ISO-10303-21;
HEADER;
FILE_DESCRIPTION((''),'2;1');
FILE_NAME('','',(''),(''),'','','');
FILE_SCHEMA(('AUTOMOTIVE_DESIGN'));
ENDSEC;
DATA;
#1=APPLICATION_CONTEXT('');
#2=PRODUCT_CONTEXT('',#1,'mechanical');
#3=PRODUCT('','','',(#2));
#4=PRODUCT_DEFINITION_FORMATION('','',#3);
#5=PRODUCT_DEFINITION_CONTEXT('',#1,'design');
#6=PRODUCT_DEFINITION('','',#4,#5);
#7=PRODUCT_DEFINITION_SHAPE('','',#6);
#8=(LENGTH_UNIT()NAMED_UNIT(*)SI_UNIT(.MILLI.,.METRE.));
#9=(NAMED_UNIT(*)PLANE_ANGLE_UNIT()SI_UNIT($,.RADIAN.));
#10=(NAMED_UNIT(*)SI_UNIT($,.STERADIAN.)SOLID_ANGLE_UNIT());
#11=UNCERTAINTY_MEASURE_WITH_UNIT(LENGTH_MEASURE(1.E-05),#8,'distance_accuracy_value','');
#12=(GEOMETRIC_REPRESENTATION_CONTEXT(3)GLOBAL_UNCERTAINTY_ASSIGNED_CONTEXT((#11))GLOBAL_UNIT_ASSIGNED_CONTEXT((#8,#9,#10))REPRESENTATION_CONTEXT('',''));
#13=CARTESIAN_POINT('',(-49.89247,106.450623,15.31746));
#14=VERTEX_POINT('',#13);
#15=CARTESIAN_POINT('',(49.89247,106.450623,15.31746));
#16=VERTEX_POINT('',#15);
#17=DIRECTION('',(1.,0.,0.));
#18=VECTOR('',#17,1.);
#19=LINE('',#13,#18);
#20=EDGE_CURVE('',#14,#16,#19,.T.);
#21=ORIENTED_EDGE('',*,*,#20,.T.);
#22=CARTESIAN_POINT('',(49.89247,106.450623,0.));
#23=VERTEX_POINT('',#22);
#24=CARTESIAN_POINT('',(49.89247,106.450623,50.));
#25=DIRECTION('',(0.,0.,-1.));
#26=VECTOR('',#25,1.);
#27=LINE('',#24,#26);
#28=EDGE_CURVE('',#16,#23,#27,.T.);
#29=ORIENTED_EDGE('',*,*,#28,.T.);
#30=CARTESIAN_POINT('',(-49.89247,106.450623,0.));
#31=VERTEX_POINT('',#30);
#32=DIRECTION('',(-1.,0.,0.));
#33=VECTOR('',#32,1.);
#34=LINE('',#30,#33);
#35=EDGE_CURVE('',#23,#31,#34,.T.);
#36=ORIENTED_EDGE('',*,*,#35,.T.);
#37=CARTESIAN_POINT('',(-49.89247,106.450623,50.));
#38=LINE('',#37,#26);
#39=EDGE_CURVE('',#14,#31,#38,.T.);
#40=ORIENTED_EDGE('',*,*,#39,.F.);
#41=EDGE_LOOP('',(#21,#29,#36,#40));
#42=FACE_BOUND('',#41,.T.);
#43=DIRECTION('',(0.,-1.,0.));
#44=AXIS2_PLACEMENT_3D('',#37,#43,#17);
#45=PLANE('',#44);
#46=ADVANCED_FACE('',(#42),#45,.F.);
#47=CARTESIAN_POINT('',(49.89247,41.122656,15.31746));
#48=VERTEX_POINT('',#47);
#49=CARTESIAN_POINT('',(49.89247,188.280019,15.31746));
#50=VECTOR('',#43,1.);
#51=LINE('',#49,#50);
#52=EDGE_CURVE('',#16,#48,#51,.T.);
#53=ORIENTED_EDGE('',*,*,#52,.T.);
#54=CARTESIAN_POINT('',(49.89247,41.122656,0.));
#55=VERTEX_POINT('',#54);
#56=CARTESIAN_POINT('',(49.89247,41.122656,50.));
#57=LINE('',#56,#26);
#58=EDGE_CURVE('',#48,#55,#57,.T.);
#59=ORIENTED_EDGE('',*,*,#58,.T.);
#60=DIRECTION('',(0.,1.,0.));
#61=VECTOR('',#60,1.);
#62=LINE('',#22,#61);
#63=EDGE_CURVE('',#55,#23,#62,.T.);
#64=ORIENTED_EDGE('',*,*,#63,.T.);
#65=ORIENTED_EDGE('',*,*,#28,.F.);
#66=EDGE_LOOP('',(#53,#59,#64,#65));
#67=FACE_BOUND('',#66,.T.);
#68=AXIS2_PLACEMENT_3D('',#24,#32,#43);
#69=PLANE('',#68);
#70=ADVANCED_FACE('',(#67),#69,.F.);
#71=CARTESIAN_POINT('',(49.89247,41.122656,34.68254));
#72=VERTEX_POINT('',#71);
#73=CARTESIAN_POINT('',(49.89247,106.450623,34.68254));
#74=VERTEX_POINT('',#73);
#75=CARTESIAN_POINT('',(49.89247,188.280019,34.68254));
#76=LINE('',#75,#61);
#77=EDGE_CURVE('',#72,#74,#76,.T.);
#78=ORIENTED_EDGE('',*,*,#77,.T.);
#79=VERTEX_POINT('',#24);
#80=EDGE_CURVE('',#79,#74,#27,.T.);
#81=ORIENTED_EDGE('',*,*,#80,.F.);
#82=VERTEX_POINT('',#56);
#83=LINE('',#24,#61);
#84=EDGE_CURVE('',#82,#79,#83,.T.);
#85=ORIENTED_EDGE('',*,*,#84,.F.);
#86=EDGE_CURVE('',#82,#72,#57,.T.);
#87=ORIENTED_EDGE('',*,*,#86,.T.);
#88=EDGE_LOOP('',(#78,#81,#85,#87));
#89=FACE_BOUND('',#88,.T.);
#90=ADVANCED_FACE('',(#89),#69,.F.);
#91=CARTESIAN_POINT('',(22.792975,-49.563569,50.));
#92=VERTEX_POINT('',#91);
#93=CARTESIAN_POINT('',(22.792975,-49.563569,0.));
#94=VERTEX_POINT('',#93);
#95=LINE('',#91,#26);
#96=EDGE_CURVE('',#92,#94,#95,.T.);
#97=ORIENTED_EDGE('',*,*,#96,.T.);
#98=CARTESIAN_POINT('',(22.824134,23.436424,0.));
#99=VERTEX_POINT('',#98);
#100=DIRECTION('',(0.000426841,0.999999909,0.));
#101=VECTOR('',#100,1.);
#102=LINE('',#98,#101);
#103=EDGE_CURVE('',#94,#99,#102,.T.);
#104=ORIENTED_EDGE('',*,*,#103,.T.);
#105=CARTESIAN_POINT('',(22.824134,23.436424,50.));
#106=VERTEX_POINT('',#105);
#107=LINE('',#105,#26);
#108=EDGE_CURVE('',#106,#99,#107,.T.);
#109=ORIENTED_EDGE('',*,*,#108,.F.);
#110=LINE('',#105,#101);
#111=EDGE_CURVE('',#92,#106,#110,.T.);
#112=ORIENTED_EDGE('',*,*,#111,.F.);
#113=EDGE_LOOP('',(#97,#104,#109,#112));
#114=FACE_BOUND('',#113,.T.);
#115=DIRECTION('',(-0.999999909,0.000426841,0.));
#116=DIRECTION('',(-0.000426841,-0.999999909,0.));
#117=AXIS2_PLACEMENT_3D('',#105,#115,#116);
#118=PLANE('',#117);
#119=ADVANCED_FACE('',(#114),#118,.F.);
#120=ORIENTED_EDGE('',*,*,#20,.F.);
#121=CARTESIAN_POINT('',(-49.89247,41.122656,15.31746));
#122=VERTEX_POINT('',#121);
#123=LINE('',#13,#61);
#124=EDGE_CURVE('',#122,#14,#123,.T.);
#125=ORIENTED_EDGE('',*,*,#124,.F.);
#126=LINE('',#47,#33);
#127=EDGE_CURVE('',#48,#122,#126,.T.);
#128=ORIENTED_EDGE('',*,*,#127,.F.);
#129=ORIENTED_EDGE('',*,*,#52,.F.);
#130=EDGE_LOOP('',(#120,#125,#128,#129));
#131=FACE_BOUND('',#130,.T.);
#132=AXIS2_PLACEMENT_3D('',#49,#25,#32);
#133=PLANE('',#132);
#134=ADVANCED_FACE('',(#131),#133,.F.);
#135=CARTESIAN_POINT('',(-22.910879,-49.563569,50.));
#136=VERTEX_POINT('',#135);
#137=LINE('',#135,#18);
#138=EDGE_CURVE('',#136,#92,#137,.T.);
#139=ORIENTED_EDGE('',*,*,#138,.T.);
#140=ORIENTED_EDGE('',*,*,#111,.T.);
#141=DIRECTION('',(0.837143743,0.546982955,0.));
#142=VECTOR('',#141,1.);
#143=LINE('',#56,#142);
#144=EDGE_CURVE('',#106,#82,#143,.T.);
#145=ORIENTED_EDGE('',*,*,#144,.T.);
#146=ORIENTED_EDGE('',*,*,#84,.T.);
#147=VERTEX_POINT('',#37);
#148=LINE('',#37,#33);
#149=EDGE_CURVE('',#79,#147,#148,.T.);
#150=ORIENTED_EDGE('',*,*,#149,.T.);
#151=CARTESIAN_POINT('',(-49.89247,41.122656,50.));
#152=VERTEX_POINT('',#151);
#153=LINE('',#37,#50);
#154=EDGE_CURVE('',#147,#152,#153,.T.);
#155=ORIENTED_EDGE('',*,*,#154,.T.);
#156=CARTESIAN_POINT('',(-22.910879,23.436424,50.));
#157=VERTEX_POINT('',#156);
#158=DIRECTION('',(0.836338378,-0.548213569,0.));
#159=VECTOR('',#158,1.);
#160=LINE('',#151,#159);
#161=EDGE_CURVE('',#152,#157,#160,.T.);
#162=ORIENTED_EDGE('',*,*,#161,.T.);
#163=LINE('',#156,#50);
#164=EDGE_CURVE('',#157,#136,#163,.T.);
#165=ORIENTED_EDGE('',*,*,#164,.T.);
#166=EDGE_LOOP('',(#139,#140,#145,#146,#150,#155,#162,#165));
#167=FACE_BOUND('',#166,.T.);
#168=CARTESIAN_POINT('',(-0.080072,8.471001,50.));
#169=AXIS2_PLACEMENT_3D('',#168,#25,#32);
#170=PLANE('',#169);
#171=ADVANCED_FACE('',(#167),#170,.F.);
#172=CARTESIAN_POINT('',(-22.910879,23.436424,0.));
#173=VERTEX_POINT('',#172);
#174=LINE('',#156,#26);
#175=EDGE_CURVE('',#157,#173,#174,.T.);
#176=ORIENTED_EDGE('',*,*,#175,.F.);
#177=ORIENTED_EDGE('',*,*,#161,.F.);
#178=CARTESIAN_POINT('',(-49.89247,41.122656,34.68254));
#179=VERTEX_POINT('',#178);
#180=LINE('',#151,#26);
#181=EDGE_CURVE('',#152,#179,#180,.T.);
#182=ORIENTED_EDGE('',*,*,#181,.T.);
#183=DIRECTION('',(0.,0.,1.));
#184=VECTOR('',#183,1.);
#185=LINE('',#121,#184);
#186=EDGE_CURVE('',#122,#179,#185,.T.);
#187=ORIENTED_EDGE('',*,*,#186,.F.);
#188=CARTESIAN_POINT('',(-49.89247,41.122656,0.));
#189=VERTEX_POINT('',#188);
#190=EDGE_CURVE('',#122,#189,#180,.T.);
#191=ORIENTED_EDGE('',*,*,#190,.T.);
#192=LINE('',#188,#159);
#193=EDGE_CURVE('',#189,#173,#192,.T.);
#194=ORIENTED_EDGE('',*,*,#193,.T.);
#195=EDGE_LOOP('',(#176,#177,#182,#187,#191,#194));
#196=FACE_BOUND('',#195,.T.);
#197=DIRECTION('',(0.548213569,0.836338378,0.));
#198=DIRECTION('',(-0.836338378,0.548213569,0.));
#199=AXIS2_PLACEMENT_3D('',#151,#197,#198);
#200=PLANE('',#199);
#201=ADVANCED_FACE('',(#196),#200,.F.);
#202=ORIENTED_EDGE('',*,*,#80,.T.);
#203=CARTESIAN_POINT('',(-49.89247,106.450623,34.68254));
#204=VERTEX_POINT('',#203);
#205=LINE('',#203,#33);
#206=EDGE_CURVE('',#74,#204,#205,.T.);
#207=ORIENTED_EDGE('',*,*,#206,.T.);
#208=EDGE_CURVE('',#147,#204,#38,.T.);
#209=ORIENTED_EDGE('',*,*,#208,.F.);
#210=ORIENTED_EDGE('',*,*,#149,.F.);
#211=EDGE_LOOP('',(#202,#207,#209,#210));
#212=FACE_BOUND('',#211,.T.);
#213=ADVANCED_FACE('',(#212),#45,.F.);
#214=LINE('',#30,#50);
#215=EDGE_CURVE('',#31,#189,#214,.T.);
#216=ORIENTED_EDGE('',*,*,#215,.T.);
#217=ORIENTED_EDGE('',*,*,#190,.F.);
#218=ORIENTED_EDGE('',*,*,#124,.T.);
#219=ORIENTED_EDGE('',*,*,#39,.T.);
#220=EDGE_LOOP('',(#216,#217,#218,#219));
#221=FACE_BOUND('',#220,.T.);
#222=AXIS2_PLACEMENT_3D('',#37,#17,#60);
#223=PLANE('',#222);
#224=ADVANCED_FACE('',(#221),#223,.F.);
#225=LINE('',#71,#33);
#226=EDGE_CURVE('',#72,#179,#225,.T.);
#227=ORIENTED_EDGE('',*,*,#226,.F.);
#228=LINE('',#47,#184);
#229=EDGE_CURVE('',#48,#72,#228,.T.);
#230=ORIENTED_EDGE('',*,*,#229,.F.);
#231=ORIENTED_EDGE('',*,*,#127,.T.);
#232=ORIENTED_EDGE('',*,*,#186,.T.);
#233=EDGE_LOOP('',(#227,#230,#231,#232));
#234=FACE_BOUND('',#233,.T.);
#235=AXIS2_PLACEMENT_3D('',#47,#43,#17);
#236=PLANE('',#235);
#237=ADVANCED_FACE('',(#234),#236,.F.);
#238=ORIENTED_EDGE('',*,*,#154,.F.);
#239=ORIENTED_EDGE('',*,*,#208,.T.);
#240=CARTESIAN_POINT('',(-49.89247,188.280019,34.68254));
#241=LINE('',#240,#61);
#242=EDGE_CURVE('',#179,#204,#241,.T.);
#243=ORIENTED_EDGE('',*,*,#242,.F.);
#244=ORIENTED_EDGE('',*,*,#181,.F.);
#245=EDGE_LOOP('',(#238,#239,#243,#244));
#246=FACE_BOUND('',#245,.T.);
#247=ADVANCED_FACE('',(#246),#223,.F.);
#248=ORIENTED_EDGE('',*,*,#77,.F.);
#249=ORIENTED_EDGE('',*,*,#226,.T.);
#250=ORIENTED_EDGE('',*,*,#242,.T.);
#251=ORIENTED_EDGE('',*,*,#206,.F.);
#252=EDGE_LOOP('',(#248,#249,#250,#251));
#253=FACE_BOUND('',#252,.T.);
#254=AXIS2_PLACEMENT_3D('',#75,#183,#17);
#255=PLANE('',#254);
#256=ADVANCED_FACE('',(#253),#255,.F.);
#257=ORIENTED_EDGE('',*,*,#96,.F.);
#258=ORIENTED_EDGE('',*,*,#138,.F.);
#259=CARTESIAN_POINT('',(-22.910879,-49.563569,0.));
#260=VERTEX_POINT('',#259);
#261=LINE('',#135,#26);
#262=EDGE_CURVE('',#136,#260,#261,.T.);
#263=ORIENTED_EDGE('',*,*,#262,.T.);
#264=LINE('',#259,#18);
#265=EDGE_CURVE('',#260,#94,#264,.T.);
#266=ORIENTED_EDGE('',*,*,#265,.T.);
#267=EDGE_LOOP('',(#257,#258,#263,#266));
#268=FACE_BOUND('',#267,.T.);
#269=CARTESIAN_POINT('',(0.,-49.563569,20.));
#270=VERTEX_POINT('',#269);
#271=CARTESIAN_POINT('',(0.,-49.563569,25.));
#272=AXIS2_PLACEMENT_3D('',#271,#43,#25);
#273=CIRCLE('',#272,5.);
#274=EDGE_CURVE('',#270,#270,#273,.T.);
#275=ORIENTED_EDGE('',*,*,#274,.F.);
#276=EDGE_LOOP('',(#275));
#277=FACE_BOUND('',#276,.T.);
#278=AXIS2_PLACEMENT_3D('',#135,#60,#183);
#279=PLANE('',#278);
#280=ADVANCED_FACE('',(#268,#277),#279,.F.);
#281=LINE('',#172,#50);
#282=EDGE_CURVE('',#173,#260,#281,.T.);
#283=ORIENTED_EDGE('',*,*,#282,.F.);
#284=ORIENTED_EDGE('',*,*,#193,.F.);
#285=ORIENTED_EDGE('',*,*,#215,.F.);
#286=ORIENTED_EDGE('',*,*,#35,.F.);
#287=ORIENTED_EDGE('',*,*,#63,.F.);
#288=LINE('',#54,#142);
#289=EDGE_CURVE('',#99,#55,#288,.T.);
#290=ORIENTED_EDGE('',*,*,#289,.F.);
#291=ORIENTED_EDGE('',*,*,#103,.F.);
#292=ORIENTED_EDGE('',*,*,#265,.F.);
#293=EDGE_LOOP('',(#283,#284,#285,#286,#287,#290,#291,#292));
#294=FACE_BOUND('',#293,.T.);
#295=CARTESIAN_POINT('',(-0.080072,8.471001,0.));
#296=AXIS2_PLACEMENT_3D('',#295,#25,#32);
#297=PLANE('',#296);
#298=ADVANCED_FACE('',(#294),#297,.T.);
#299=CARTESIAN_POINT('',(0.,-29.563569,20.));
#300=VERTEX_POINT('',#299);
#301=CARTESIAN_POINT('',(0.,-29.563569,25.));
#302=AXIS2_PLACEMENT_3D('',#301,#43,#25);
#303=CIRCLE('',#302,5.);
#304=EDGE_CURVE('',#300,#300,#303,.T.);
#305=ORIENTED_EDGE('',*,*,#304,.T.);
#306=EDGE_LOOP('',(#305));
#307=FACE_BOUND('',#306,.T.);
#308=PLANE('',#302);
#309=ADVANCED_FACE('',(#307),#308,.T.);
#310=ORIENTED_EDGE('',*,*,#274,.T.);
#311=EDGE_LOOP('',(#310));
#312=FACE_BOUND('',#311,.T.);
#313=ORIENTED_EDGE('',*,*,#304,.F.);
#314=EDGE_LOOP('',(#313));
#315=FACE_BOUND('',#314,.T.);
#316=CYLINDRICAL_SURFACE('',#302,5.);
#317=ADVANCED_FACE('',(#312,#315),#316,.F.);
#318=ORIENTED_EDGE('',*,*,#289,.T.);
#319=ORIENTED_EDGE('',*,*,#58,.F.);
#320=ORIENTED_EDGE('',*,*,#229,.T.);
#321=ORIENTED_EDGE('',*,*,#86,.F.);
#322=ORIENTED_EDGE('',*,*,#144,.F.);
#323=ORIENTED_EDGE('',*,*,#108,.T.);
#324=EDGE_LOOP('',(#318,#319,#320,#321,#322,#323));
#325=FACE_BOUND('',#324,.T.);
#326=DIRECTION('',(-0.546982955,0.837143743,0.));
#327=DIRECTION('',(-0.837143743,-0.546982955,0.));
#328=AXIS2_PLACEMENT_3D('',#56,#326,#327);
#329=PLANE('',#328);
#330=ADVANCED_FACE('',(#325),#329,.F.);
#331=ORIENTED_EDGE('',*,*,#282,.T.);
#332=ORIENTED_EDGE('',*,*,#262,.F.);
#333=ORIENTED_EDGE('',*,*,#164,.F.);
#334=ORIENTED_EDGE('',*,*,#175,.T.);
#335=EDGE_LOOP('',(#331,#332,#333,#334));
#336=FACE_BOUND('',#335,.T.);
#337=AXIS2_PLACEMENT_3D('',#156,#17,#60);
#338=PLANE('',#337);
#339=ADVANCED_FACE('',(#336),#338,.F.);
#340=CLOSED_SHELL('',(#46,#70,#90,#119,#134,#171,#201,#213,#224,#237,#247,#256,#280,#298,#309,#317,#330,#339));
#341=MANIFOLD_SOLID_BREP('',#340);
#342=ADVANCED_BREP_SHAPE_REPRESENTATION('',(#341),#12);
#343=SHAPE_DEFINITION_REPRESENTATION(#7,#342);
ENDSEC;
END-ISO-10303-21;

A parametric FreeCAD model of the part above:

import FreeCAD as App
import Part
import Sketcher
from FreeCAD import Vector
Q = App.Units.Quantity


def add_polygon(sketch, points):
    """Adds a closed chain of lines whose ends are joined by coincident constraints."""
    first, n = sketch.GeometryCount, len(points)
    for a, b in zip(points, points[1:] + points[:1]):
        sketch.addGeometry(Part.LineSegment(App.Vector(*a, 0), App.Vector(*b, 0)), False)
    for i in range(n):
        sketch.addConstraint(Sketcher.Constraint("Coincident", first + i, 2, first + (i + 1) % n, 1))

doc = App.newDocument("Part")
body = doc.addObject("PartDesign::Body", "Body")

# Sketch on XY plane
sketch1 = body.newObject("Sketcher::SketchObject", "Sketch")
sketch1.AttachmentSupport = (doc.getObject("XY_Plane"), [""])
sketch1.MapMode = "FlatFace"
add_polygon(sketch1, [(22.824134, 23.436424), (49.89247, 41.122656), (49.89247, 106.450623), (-49.89247, 106.450623), (-49.89247, 41.122656), (-22.910879, 23.436424), (-22.910879, -49.563569), (22.792975, -49.563569)])  # lines 0-7
sketch1.addConstraint([
    Sketcher.Constraint("Vertical", 1),
    Sketcher.Constraint("Horizontal", 2),
    Sketcher.Constraint("Vertical", 3),
    Sketcher.Constraint("Vertical", 5),
    Sketcher.Constraint("Horizontal", 6),
    Sketcher.Constraint("Symmetric", 0, 2, 3, 2, -2),
    Sketcher.Constraint("Horizontal", 4, 2, 7, 2),
    Sketcher.Constraint("Distance", 7, Q("73 mm")),
    Sketcher.Constraint("DistanceX", 2, 2, 2, 1, Q("99.78494 mm")),
    Sketcher.Constraint("DistanceY", 4, 2, 2, 2, Q("83.014199 mm")),
    Sketcher.Constraint("DistanceX", 6, 1, 6, 2, Q("45.703853 mm")),
    Sketcher.Constraint("DistanceY", 1, 1, 1, 2, Q("65.327967 mm")),
    Sketcher.Constraint("DistanceX", 4, 2, -1, 1, Q("22.910879 mm")),
    Sketcher.Constraint("DistanceY", 5, 2, -1, 1, Q("49.563569 mm")),
    Sketcher.Constraint("DistanceX", 6, 2, 7, 2, Q("0.031159 mm")),
])
pad1 = body.newObject("PartDesign::Pad", "Pad")
pad1.Profile = sketch1
pad1.Length = 50

# Sketch on XZ plane
sketch2 = body.newObject("Sketcher::SketchObject", "Sketch001")
sketch2.AttachmentSupport = (doc.getObject("XZ_Plane"), [""])
sketch2.MapMode = "FlatFace"
sketch2.AttachmentOffset = App.Placement(Vector(0, 0, 49.563569), App.Rotation())
sketch2.addGeometry(Part.Circle(Vector(0, 25, 0), Vector(0, 0, 1), 5), False)
sketch2.addConstraint([
    Sketcher.Constraint("PointOnObject", 0, 3, -2),
    Sketcher.Constraint("Diameter", 0, Q("10 mm")),
    Sketcher.Constraint("DistanceY", -1, 1, 0, 3, Q("25 mm")),
])
pocket1 = body.newObject("PartDesign::Pocket", "Pocket")
pocket1.Profile = sketch2
pocket1.Length = 20

# Sketch on YZ plane
sketch3 = body.newObject("Sketcher::SketchObject", "Sketch002")
sketch3.AttachmentSupport = (doc.getObject("YZ_Plane"), [""])
sketch3.MapMode = "FlatFace"
sketch3.AttachmentOffset = App.Placement(Vector(0, 0, -49.89247), App.Rotation())
add_polygon(sketch3, [(188.280019, 15.31746), (41.122656, 15.31746), (41.122656, 34.68254), (188.280019, 34.68254)])  # lines 0-3
sketch3.addConstraint([
    Sketcher.Constraint("Horizontal", 0),
    Sketcher.Constraint("Vertical", 1),
    Sketcher.Constraint("Horizontal", 2),
    Sketcher.Constraint("Vertical", 3),
    Sketcher.Constraint("DistanceY", 1, 1, 1, 2, Q("19.365081 mm")),
    Sketcher.Constraint("DistanceX", 0, 2, 0, 1, Q("147.157363 mm")),
    Sketcher.Constraint("DistanceY", -1, 1, 0, 2, Q("15.31746 mm")),
    Sketcher.Constraint("DistanceX", -1, 1, 2, 2, Q("188.280019 mm")),
])
pocket2 = body.newObject("PartDesign::Pocket", "Pocket001")
pocket2.Profile = sketch3
pocket2.Type = "ThroughAll"
pocket2.Reversed = True

doc.recompute()
